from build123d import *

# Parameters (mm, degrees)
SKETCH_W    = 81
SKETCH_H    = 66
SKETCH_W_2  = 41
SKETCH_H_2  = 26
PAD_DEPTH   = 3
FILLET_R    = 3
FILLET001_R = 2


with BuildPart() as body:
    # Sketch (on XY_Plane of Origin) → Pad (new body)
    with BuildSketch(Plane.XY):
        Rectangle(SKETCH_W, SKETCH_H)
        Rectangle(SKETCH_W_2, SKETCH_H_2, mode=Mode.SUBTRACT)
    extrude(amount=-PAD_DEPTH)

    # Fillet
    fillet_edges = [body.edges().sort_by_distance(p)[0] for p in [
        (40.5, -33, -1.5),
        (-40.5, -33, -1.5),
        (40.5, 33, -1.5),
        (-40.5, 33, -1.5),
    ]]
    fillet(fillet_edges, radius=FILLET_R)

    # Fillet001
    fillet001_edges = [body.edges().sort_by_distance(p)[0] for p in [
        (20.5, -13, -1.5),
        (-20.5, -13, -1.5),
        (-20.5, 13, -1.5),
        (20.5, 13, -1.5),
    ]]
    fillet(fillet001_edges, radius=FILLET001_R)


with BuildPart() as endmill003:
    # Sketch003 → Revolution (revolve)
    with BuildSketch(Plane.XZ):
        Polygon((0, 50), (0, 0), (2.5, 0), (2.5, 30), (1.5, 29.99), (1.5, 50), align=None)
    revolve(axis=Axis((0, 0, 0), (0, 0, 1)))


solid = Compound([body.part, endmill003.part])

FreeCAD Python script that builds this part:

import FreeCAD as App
import Part
import Sketcher
from FreeCAD import Vector
Q = App.Units.Quantity


def edges_at(feature, points):
    """Names of the edges that pass closest to the given points."""
    edges = feature.Shape.Edges
    near = lambda p: min(range(len(edges)), key=lambda i: edges[i].distToShape(Part.Vertex(*p))[0])
    return sorted({f"Edge{near(p) + 1}" for p in points})


def add_polygon(sketch, points):
    """Adds a closed chain of lines whose ends are joined by coincident constraints."""
    first, n = sketch.GeometryCount, len(points)
    for a, b in zip(points, points[1:] + points[:1]):
        sketch.addGeometry(Part.LineSegment(App.Vector(*a, 0), App.Vector(*b, 0)), False)
    for i in range(n):
        sketch.addConstraint(Sketcher.Constraint("Coincident", first + i, 2, first + (i + 1) % n, 1))

doc = App.newDocument("Part")
params = doc.addObject("Spreadsheet::Sheet", "Params")
for row, (alias, value) in enumerate([
    ("sketch1_width", "81 mm"),
    ("sketch1_width2", "41 mm"),
    ("sketch1_height", "66 mm"),
    ("sketch1_height2", "26 mm"),
    ("pad1_length", "3 mm"),
    ("fillet_radius", "3 mm"),
    ("fillet2_radius", "2 mm"),
    ("sketch2_height", "50 mm"),
    ("sketch2_height2", "30 mm"),
    ("sketch2_width", "2.5 mm"),
    ("sketch2_width2", "1.5 mm"),
    ("sketch2_height3", "20.01 mm"),
    ("revolution_angle", "360 deg"),
], start=1):
    params.set(f"A{row}", alias)
    params.set(f"B{row}", "=" + value)
    params.setAlias(f"B{row}", alias)

body = doc.addObject("PartDesign::Body", "Body")

# Sketch on XY plane
sketch1 = body.newObject("Sketcher::SketchObject", "Sketch")
sketch1.AttachmentSupport = (doc.getObject("XY_Plane"), [""])
sketch1.MapMode = "FlatFace"
add_polygon(sketch1, [(-40.5, 33), (-40.5, -33), (40.5, -33), (40.5, 33)])  # lines 0-3
add_polygon(sketch1, [(20.5, -13), (-20.5, -13), (-20.5, 13), (20.5, 13)])  # lines 4-7
sketch1.addConstraint([
    Sketcher.Constraint("Vertical", 0),
    Sketcher.Constraint("Horizontal", 1),
    Sketcher.Constraint("Vertical", 2),
    Sketcher.Constraint("Horizontal", 3),
    Sketcher.Constraint("Horizontal", 4),
    Sketcher.Constraint("Vertical", 5),
    Sketcher.Constraint("Horizontal", 6),
    Sketcher.Constraint("Vertical", 7),
    Sketcher.Constraint("Symmetric", 0, 2, 2, 2, -1, 1),
    Sketcher.Constraint("Symmetric", 4, 2, 6, 2, -1, 1),
    Sketcher.Constraint("DistanceX", 1, 1, 1, 2, Q("81 mm")),
    Sketcher.Constraint("DistanceX", 4, 2, 4, 1, Q("41 mm")),
    Sketcher.Constraint("DistanceY", 0, 2, 0, 1, Q("66 mm")),
    Sketcher.Constraint("DistanceY", 5, 1, 5, 2, Q("26 mm")),
])
sketch1.setExpression("Constraints[18]", "Params.sketch1_width")
sketch1.setExpression("Constraints[19]", "Params.sketch1_width2")
sketch1.setExpression("Constraints[20]", "Params.sketch1_height")
sketch1.setExpression("Constraints[21]", "Params.sketch1_height2")
pad1 = body.newObject("PartDesign::Pad", "Pad")
pad1.Profile = sketch1
pad1.setExpression("Length", "Params.pad1_length")
pad1.Reversed = True
doc.recompute()

fillet = body.newObject("PartDesign::Fillet", "Fillet")
fillet.Base = (pad1, edges_at(pad1, [
    (40.5, -33, -1.5),
    (-40.5, -33, -1.5),
    (40.5, 33, -1.5),
    (-40.5, 33, -1.5),
]))
fillet.setExpression("Radius", "Params.fillet_radius")
doc.recompute()

fillet2 = body.newObject("PartDesign::Fillet", "Fillet001")
fillet2.Base = (fillet, edges_at(fillet, [
    (20.5, -13, -1.5),
    (-20.5, -13, -1.5),
    (-20.5, 13, -1.5),
    (20.5, 13, -1.5),
]))
fillet2.setExpression("Radius", "Params.fillet2_radius")
body2 = doc.addObject("PartDesign::Body", "Body001")

# Sketch on XZ plane
sketch2 = body2.newObject("Sketcher::SketchObject", "Sketch001")
sketch2.AttachmentSupport = (doc.getObject("XZ_Plane001"), [""])
sketch2.MapMode = "FlatFace"
add_polygon(sketch2, [(0, 50), (0, 0), (2.5, 0), (2.5, 30), (1.5, 29.99), (1.5, 50)])  # lines 0-5
sketch2.addConstraint([
    Sketcher.Constraint("Vertical", 0),
    Sketcher.Constraint("Horizontal", 1),
    Sketcher.Constraint("Vertical", 2),
    Sketcher.Constraint("Vertical", 4),
    Sketcher.Constraint("Horizontal", 5),
    Sketcher.Constraint("Coincident", 0, 2, -1, 1),
    Sketcher.Constraint("DistanceY", 0, 2, 0, 1, Q("50 mm")),
    Sketcher.Constraint("DistanceY", 2, 1, 2, 2, Q("30 mm")),
    Sketcher.Constraint("DistanceX", 1, 1, 1, 2, Q("2.5 mm")),
    Sketcher.Constraint("DistanceX", 5, 2, 5, 1, Q("1.5 mm")),
    Sketcher.Constraint("DistanceY", 4, 1, 4, 2, Q("20.01 mm")),
])
sketch2.setExpression("Constraints[12]", "Params.sketch2_height")
sketch2.setExpression("Constraints[13]", "Params.sketch2_height2")
sketch2.setExpression("Constraints[14]", "Params.sketch2_width")
sketch2.setExpression("Constraints[15]", "Params.sketch2_width2")
sketch2.setExpression("Constraints[16]", "Params.sketch2_height3")
revolution = body2.newObject("PartDesign::Revolution", "Revolution")
revolution.Profile = sketch2
revolution.ReferenceAxis = (sketch2, ["V_Axis"])
revolution.setExpression("Angle", "Params.revolution_angle")

doc.recompute()
